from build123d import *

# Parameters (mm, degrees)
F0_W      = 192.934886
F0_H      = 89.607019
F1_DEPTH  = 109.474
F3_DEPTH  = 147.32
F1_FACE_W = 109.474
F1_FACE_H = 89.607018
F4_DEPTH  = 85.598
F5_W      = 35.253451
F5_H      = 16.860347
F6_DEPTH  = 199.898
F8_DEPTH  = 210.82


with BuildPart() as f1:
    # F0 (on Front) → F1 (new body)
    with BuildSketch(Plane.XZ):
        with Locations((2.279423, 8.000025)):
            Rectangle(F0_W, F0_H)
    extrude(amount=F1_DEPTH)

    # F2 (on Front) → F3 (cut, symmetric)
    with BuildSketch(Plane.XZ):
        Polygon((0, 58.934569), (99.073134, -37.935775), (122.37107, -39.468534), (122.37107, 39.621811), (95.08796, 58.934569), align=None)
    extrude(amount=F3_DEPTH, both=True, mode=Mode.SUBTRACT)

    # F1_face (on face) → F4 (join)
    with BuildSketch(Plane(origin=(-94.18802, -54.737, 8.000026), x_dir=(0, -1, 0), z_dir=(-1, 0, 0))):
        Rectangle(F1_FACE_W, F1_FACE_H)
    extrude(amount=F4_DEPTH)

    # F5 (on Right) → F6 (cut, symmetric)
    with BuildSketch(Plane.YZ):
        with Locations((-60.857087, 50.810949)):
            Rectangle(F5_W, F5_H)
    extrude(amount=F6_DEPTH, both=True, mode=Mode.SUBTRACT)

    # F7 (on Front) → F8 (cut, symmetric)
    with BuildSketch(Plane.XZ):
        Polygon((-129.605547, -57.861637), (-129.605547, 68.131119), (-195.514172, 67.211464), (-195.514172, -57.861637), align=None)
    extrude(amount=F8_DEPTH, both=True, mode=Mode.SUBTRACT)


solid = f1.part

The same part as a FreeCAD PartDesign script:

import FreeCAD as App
import Part
import Sketcher
from FreeCAD import Vector
Q = App.Units.Quantity

doc = App.newDocument("Part")
body = doc.addObject("PartDesign::Body", "Body")

# Sketch on XZ plane
sketch1 = doc.addObject("Sketcher::SketchObject", "Sketch")
body.addObject(sketch1)
sketch1.AttachmentSupport = (doc.XZ_Plane, [""])
sketch1.MapMode = "FlatFace"
sketch1.addGeometry([
    Part.LineSegment(Vector(-94, 53, 0), Vector(-94, -37, 0)),
    Part.LineSegment(Vector(-94, -37, 0), Vector(99, -37, 0)),
    Part.LineSegment(Vector(99, -37, 0), Vector(99, 53, 0)),
    Part.LineSegment(Vector(99, 53, 0), Vector(-94, 53, 0)),
], False)
sketch1.addConstraint([
    Sketcher.Constraint("Coincident", 0, 2, 1, 1),
    Sketcher.Constraint("Coincident", 1, 2, 2, 1),
    Sketcher.Constraint("Coincident", 2, 2, 3, 1),
    Sketcher.Constraint("Coincident", 3, 2, 0, 1),
    Sketcher.Constraint("Vertical", 0),
    Sketcher.Constraint("Horizontal", 1),
    Sketcher.Constraint("Vertical", 2),
    Sketcher.Constraint("Horizontal", 3),
    Sketcher.Constraint("DistanceY", 0, 2, 0, 1, Q("89.607019 mm")),
    Sketcher.Constraint("DistanceX", 1, 1, 1, 2, Q("192.934886 mm")),
    Sketcher.Constraint("DistanceX", 0, 2, -1, 1, Q("94.18802 mm")),
    Sketcher.Constraint("DistanceY", 0, 2, -1, 1, Q("36.803485 mm")),
])
pad1 = doc.addObject("PartDesign::Pad", "Pad")
body.addObject(pad1)
pad1.Profile = sketch1
pad1.Length = Q("4.31 in")

# Sketch on XZ plane
sketch2 = doc.addObject("Sketcher::SketchObject", "Sketch001")
body.addObject(sketch2)
sketch2.AttachmentSupport = (doc.XZ_Plane, [""])
sketch2.MapMode = "FlatFace"
sketch2.addGeometry([
    Part.LineSegment(Vector(0, 59, 0), Vector(99, -38, 0)),  # 0
    Part.LineSegment(Vector(99, -38, 0), Vector(122, -39, 0)),  # 1
    Part.LineSegment(Vector(122, -39, 0), Vector(122, 40, 0)),  # 2
    Part.LineSegment(Vector(122, 40, 0), Vector(95, 59, 0)),  # 3
    Part.LineSegment(Vector(95, 59, 0), Vector(0, 59, 0)),  # 4
], False)
sketch2.addConstraint([
    Sketcher.Constraint("Coincident", 0, 2, 1, 1),
    Sketcher.Constraint("Coincident", 1, 2, 2, 1),
    Sketcher.Constraint("Coincident", 2, 2, 3, 1),
    Sketcher.Constraint("Coincident", 3, 2, 4, 1),
    Sketcher.Constraint("Coincident", 4, 2, 0, 1),
    Sketcher.Constraint("Vertical", 2),
    Sketcher.Constraint("Horizontal", 4),
    Sketcher.Constraint("PointOnObject", 4, 2, -2),
    Sketcher.Constraint("Distance", 1, Q("23.348301 mm")),
    Sketcher.Constraint("DistanceX", 4, 2, 4, 1, Q("95.08796 mm")),
    Sketcher.Constraint("DistanceY", 2, 1, 2, 2, Q("79.090345 mm")),
    Sketcher.Constraint("DistanceX", -1, 1, 1, 2, Q("122.37107 mm")),
    Sketcher.Constraint("DistanceY", -1, 1, 2, 2, Q("39.621811 mm")),
    Sketcher.Constraint("DistanceY", -1, 1, 3, 2, Q("58.934569 mm")),
    Sketcher.Constraint("DistanceY", 1, 2, 0, 2, Q("1.532759 mm")),
])
pocket1 = doc.addObject("PartDesign::Pocket", "Pocket")
body.addObject(pocket1)
pocket1.Profile = sketch2
pocket1.Length = Q("11.6 in")
pocket1.Midplane = True

# Sketch on YZ plane
sketch3 = doc.addObject("Sketcher::SketchObject", "Sketch002")
body.addObject(sketch3)
sketch3.AttachmentSupport = (doc.YZ_Plane, [""])
sketch3.MapMode = "FlatFace"
sketch3.AttachmentOffset = App.Placement(Vector(0, 0, -94.18802), App.Rotation())
sketch3.addGeometry([
    Part.LineSegment(Vector(0, 53, 0), Vector(0, -37, 0)),
    Part.LineSegment(Vector(0, -37, 0), Vector(-109, -37, 0)),
    Part.LineSegment(Vector(-109, -37, 0), Vector(-109, 53, 0)),
    Part.LineSegment(Vector(-109, 53, 0), Vector(0, 53, 0)),
], False)
sketch3.addConstraint([
    Sketcher.Constraint("Coincident", 0, 2, 1, 1),
    Sketcher.Constraint("Coincident", 1, 2, 2, 1),
    Sketcher.Constraint("Coincident", 2, 2, 3, 1),
    Sketcher.Constraint("Coincident", 3, 2, 0, 1),
    Sketcher.Constraint("Vertical", 0),
    Sketcher.Constraint("Horizontal", 1),
    Sketcher.Constraint("Vertical", 2),
    Sketcher.Constraint("Horizontal", 3),
    Sketcher.Constraint("PointOnObject", 0, 2, -2),
    Sketcher.Constraint("DistanceX", 1, 2, 1, 1, Q("4.31 in")),
    Sketcher.Constraint("DistanceY", 0, 2, 0, 1, Q("89.607018 mm")),
    Sketcher.Constraint("DistanceY", 0, 2, -1, 1, Q("36.803483 mm")),
])
pad2 = doc.addObject("PartDesign::Pad", "Pad001")
body.addObject(pad2)
pad2.Profile = sketch3
pad2.Length = Q("3.37 in")
pad2.Reversed = True

# Sketch on YZ plane
sketch4 = doc.addObject("Sketcher::SketchObject", "Sketch003")
body.addObject(sketch4)
sketch4.AttachmentSupport = (doc.YZ_Plane, [""])
sketch4.MapMode = "FlatFace"
sketch4.addGeometry([
    Part.LineSegment(Vector(-78, 59, 0), Vector(-78, 42, 0)),
    Part.LineSegment(Vector(-78, 42, 0), Vector(-43, 42, 0)),
    Part.LineSegment(Vector(-43, 42, 0), Vector(-43, 59, 0)),
    Part.LineSegment(Vector(-43, 59, 0), Vector(-78, 59, 0)),
], False)
sketch4.addConstraint([
    Sketcher.Constraint("Coincident", 0, 2, 1, 1),
    Sketcher.Constraint("Coincident", 1, 2, 2, 1),
    Sketcher.Constraint("Coincident", 2, 2, 3, 1),
    Sketcher.Constraint("Coincident", 3, 2, 0, 1),
    Sketcher.Constraint("Vertical", 0),
    Sketcher.Constraint("Horizontal", 1),
    Sketcher.Constraint("Vertical", 2),
    Sketcher.Constraint("Horizontal", 3),
    Sketcher.Constraint("DistanceX", 1, 1, 1, 2, Q("35.253451 mm")),
    Sketcher.Constraint("DistanceY", 0, 2, 0, 1, Q("16.860347 mm")),
    Sketcher.Constraint("DistanceX", 1, 2, -1, 1, Q("43.230362 mm")),
    Sketcher.Constraint("DistanceY", -1, 1, 0, 2, Q("42.380775 mm")),
])
pocket2 = doc.addObject("PartDesign::Pocket", "Pocket001")
body.addObject(pocket2)
pocket2.Profile = sketch4
pocket2.Length = Q("15.74 in")
pocket2.Midplane = True

# Sketch on XZ plane
sketch5 = doc.addObject("Sketcher::SketchObject", "Sketch004")
body.addObject(sketch5)
sketch5.AttachmentSupport = (doc.XZ_Plane, [""])
sketch5.MapMode = "FlatFace"
sketch5.addGeometry([
    Part.LineSegment(Vector(-130, -58, 0), Vector(-130, 68, 0)),
    Part.LineSegment(Vector(-130, 68, 0), Vector(-196, 67, 0)),
    Part.LineSegment(Vector(-196, 67, 0), Vector(-196, -58, 0)),
    Part.LineSegment(Vector(-196, -58, 0), Vector(-130, -58, 0)),
], False)
sketch5.addConstraint([
    Sketcher.Constraint("Coincident", 0, 2, 1, 1),
    Sketcher.Constraint("Coincident", 1, 2, 2, 1),
    Sketcher.Constraint("Coincident", 2, 2, 3, 1),
    Sketcher.Constraint("Coincident", 3, 2, 0, 1),
    Sketcher.Constraint("Vertical", 0),
    Sketcher.Constraint("Vertical", 2),
    Sketcher.Constraint("Horizontal", 3),
    Sketcher.Constraint("DistanceY", 2, 2, 2, 1, Q("125.073101 mm")),
    Sketcher.Constraint("Distance", 1, Q("65.915041 mm")),
    Sketcher.Constraint("DistanceX", 3, 1, 3, 2, Q("65.908625 mm")),
    Sketcher.Constraint("DistanceY", -1, 1, 0, 2, Q("68.131119 mm")),
    Sketcher.Constraint("DistanceX", 1, 2, -1, 1, Q("195.514172 mm")),
])
pocket3 = doc.addObject("PartDesign::Pocket", "Pocket002")
body.addObject(pocket3)
pocket3.Profile = sketch5
pocket3.Length = Q("16.6 in")
pocket3.Midplane = True

doc.recompute()
